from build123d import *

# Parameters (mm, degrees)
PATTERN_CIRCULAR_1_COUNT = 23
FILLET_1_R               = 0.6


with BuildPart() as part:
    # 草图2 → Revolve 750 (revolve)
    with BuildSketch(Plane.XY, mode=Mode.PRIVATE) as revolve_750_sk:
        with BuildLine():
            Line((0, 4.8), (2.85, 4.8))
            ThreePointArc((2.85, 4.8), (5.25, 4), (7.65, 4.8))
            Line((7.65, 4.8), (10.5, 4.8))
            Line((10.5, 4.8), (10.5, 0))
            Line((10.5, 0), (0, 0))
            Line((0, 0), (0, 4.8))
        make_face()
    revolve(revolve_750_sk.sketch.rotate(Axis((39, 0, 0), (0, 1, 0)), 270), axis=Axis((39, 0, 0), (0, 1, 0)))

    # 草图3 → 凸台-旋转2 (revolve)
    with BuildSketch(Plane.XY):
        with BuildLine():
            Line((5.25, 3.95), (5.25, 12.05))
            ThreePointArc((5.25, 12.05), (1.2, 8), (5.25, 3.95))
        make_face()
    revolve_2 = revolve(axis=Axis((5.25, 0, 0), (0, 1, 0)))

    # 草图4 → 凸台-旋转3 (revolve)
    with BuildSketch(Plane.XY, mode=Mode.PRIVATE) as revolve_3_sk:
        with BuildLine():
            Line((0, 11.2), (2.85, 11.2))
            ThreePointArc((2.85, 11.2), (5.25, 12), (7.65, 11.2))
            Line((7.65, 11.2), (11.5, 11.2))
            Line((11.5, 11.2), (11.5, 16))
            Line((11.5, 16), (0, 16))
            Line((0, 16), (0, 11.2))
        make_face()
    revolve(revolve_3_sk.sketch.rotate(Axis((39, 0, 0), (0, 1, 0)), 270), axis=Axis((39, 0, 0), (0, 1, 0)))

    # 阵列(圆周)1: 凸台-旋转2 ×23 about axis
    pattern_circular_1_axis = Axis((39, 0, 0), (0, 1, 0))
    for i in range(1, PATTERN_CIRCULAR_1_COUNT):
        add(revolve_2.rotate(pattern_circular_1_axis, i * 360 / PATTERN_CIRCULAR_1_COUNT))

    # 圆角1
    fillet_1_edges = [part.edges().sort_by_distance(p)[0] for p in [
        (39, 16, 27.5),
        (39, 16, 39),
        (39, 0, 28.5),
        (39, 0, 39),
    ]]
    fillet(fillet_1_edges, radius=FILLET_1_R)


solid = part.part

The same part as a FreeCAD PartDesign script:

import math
import FreeCAD as App
import Part
import Sketcher


def edges_at(feature, points):
    """Names of the edges that pass closest to the given points."""
    edges = feature.Shape.Edges
    near = lambda p: min(range(len(edges)), key=lambda i: edges[i].distToShape(Part.Vertex(*p))[0])
    return sorted({f"Edge{near(p) + 1}" for p in points})

doc = App.newDocument("Part")
body = doc.addObject("PartDesign::Body", "Body")

sketch1 = doc.addObject("Sketcher::SketchObject", "Sketch")
body.addObject(sketch1)
sketch1.AttachmentSupport = (doc.XY_Plane, [""])
sketch1.MapMode = "FlatFace"
sketch1.addGeometry([
    Part.LineSegment(App.Vector(2.9, 4.8, 0), App.Vector(0, 4.8, 0)),
    Part.LineSegment(App.Vector(0, 4.8, 0), App.Vector(0, 0, 0)),
    Part.LineSegment(App.Vector(0, 0, 0), App.Vector(10.5, 0, 0)),
    Part.LineSegment(App.Vector(10.5, 0, 0), App.Vector(10.5, 4.8, 0)),
    Part.LineSegment(App.Vector(10.5, 4.8, 0), App.Vector(7.7, 4.8, 0)),
    Part.ArcOfCircle(Part.Circle(App.Vector(5.2, 8, 0), App.Vector(0, 0, 1), 4), math.radians(-127), math.radians(-53)),
], False)
sketch1.addGeometry(Part.LineSegment(App.Vector(39, 0, 0), App.Vector(39, 8, 0)), True)
sketch1.addConstraint([
    Sketcher.Constraint("Coincident", 0, 2, 1, 1),
    Sketcher.Constraint("Coincident", 1, 2, 2, 1),
    Sketcher.Constraint("Coincident", 2, 2, 3, 1),
    Sketcher.Constraint("Coincident", 3, 2, 4, 1),
    Sketcher.Constraint("Coincident", 4, 2, 5, 2),
    Sketcher.Constraint("Coincident", 5, 1, 0, 1),
    Sketcher.Constraint("Horizontal", 0),
    Sketcher.Constraint("Vertical", 1),
    Sketcher.Constraint("Horizontal", 2),
    Sketcher.Constraint("Vertical", 3),
    Sketcher.Constraint("Horizontal", 4),
    Sketcher.Constraint("Vertical", 6),
    Sketcher.Constraint("Coincident", 1, 2, -1, 1),
    Sketcher.Constraint("PointOnObject", 6, 1, -1),
    Sketcher.Constraint("Horizontal", 0, 2, 3, 2),
    Sketcher.Constraint("Horizontal", 5, 3, 6, 2),
    Sketcher.Constraint("Equal", 0, 4),
    Sketcher.Constraint("Radius", 5, 4.0),
    Sketcher.Constraint("DistanceY", 6, 1, 6, 2, 8.0),
    Sketcher.Constraint("DistanceX", 2, 1, 2, 2, 10.5),
    Sketcher.Constraint("DistanceY", 1, 2, 1, 1, 4.8),
    Sketcher.Constraint("DistanceX", -1, 1, 6, 1, 39.0),
])
revolution = doc.addObject("PartDesign::Revolution", "Revolution")
body.addObject(revolution)
revolution.Profile = sketch1
revolution.ReferenceAxis = (sketch1, ["Axis0"])
revolution.Angle = 360

sketch2 = doc.addObject("Sketcher::SketchObject", "Sketch001")
body.addObject(sketch2)
sketch2.AttachmentSupport = (doc.XY_Plane, [""])
sketch2.MapMode = "FlatFace"
sketch2.addGeometry([
    Part.LineSegment(App.Vector(5.2, 4, 0), App.Vector(5.2, 12.1, 0)),
    Part.ArcOfCircle(Part.Circle(App.Vector(5.2, 8, 0), App.Vector(0, 0, 1), 4), math.radians(90), math.radians(270)),
], False)
sketch2.addGeometry(Part.LineSegment(App.Vector(5.2, 4, 0), App.Vector(5.2, 12.1, 0)), True)
sketch2.addConstraint([
    Sketcher.Constraint("Coincident", 0, 1, 1, 2),
    Sketcher.Constraint("Coincident", 1, 1, 0, 2),
    Sketcher.Constraint("Vertical", 0),
    Sketcher.Constraint("Vertical", 2),
    Sketcher.Constraint("Coincident", 2, 1, 0, 1),
    Sketcher.Constraint("Vertical", 1, 3, 0, 1),
    Sketcher.Constraint("Equal", 0, 2),
    Sketcher.Constraint("Radius", 1, 4.05),
    Sketcher.Constraint("DistanceY", -1, 1, 1, 3, 8.0),
    Sketcher.Constraint("DistanceX", -1, 1, 1, 3, 5.25),
])
revolution2 = doc.addObject("PartDesign::Revolution", "Revolution001")
body.addObject(revolution2)
revolution2.Profile = sketch2
revolution2.ReferenceAxis = (sketch2, ["Axis0"])
revolution2.Angle = 360

sketch3 = doc.addObject("Sketcher::SketchObject", "Sketch002")
body.addObject(sketch3)
sketch3.AttachmentSupport = (doc.XY_Plane, [""])
sketch3.MapMode = "FlatFace"
sketch3.addGeometry([
    Part.LineSegment(App.Vector(0, 11.2, 0), App.Vector(2.9, 11.2, 0)),
    Part.ArcOfCircle(Part.Circle(App.Vector(5.2, 8, 0), App.Vector(0, 0, 1), 4), math.radians(53), math.radians(127)),
    Part.LineSegment(App.Vector(7.7, 11.2, 0), App.Vector(11.5, 11.2, 0)),
    Part.LineSegment(App.Vector(11.5, 11.2, 0), App.Vector(11.5, 16, 0)),
    Part.LineSegment(App.Vector(11.5, 16, 0), App.Vector(0, 16, 0)),
    Part.LineSegment(App.Vector(0, 16, 0), App.Vector(0, 11.2, 0)),
], False)
sketch3.addGeometry(Part.LineSegment(App.Vector(39, 8, 0), App.Vector(39, 16, 0)), True)
sketch3.addConstraint([
    Sketcher.Constraint("Coincident", 0, 2, 1, 2),
    Sketcher.Constraint("Coincident", 1, 1, 2, 1),
    Sketcher.Constraint("Coincident", 2, 2, 3, 1),
    Sketcher.Constraint("Coincident", 3, 2, 4, 1),
    Sketcher.Constraint("Coincident", 4, 2, 5, 1),
    Sketcher.Constraint("Coincident", 5, 2, 0, 1),
    Sketcher.Constraint("Horizontal", 0),
    Sketcher.Constraint("Horizontal", 2),
    Sketcher.Constraint("Vertical", 3),
    Sketcher.Constraint("Horizontal", 4),
    Sketcher.Constraint("Vertical", 5),
    Sketcher.Constraint("Vertical", 6),
    Sketcher.Constraint("PointOnObject", 4, 2, -2),
    Sketcher.Constraint("Horizontal", 0, 2, 1, 1),
    Sketcher.Constraint("Horizontal", 1, 3, 6, 1),
    Sketcher.Constraint("Horizontal", 4, 2, 6, 2),
    Sketcher.Constraint("Radius", 1, 4.0),
    Sketcher.Constraint("DistanceY", 6, 1, 6, 2, 8.0),
    Sketcher.Constraint("DistanceX", 4, 2, 4, 1, 11.5),
    Sketcher.Constraint("DistanceY", 3, 1, 3, 2, 4.8),
    Sketcher.Constraint("DistanceY", -1, 1, 1, 3, 8.0),
    Sketcher.Constraint("DistanceX", -1, 1, 6, 1, 39.0),
    Sketcher.Constraint("DistanceX", 0, 1, 0, 2, 2.85),
])
revolution3 = doc.addObject("PartDesign::Revolution", "Revolution002")
body.addObject(revolution3)
revolution3.Profile = sketch3
revolution3.ReferenceAxis = (sketch3, ["Axis0"])
revolution3.Angle = 360
doc.recompute()

datumline = doc.addObject("PartDesign::Line", "DatumLine")
body.addObject(datumline)
datumline.Placement = App.Placement(App.Vector(39, 0, 0), App.Rotation(App.Vector(0, 0, 1), App.Vector(0, 1, 0)))
polarpattern = doc.addObject("PartDesign::PolarPattern", "PolarPattern")
body.addObject(polarpattern)
polarpattern.Originals = [revolution2]
polarpattern.Axis = (datumline, [""])
polarpattern.Angle = 360
polarpattern.Occurrences = 23
body.Tip = polarpattern
doc.recompute()

fillet = doc.addObject("PartDesign::Fillet", "Fillet")
body.addObject(fillet)
fillet.Base = (polarpattern, edges_at(polarpattern, [
    (39, 16, 27.5),
    (39, 16, 39),
    (39, 0, 28.5),
    (39, 0, 39),
]))
fillet.Radius = 0.6

doc.recompute()
